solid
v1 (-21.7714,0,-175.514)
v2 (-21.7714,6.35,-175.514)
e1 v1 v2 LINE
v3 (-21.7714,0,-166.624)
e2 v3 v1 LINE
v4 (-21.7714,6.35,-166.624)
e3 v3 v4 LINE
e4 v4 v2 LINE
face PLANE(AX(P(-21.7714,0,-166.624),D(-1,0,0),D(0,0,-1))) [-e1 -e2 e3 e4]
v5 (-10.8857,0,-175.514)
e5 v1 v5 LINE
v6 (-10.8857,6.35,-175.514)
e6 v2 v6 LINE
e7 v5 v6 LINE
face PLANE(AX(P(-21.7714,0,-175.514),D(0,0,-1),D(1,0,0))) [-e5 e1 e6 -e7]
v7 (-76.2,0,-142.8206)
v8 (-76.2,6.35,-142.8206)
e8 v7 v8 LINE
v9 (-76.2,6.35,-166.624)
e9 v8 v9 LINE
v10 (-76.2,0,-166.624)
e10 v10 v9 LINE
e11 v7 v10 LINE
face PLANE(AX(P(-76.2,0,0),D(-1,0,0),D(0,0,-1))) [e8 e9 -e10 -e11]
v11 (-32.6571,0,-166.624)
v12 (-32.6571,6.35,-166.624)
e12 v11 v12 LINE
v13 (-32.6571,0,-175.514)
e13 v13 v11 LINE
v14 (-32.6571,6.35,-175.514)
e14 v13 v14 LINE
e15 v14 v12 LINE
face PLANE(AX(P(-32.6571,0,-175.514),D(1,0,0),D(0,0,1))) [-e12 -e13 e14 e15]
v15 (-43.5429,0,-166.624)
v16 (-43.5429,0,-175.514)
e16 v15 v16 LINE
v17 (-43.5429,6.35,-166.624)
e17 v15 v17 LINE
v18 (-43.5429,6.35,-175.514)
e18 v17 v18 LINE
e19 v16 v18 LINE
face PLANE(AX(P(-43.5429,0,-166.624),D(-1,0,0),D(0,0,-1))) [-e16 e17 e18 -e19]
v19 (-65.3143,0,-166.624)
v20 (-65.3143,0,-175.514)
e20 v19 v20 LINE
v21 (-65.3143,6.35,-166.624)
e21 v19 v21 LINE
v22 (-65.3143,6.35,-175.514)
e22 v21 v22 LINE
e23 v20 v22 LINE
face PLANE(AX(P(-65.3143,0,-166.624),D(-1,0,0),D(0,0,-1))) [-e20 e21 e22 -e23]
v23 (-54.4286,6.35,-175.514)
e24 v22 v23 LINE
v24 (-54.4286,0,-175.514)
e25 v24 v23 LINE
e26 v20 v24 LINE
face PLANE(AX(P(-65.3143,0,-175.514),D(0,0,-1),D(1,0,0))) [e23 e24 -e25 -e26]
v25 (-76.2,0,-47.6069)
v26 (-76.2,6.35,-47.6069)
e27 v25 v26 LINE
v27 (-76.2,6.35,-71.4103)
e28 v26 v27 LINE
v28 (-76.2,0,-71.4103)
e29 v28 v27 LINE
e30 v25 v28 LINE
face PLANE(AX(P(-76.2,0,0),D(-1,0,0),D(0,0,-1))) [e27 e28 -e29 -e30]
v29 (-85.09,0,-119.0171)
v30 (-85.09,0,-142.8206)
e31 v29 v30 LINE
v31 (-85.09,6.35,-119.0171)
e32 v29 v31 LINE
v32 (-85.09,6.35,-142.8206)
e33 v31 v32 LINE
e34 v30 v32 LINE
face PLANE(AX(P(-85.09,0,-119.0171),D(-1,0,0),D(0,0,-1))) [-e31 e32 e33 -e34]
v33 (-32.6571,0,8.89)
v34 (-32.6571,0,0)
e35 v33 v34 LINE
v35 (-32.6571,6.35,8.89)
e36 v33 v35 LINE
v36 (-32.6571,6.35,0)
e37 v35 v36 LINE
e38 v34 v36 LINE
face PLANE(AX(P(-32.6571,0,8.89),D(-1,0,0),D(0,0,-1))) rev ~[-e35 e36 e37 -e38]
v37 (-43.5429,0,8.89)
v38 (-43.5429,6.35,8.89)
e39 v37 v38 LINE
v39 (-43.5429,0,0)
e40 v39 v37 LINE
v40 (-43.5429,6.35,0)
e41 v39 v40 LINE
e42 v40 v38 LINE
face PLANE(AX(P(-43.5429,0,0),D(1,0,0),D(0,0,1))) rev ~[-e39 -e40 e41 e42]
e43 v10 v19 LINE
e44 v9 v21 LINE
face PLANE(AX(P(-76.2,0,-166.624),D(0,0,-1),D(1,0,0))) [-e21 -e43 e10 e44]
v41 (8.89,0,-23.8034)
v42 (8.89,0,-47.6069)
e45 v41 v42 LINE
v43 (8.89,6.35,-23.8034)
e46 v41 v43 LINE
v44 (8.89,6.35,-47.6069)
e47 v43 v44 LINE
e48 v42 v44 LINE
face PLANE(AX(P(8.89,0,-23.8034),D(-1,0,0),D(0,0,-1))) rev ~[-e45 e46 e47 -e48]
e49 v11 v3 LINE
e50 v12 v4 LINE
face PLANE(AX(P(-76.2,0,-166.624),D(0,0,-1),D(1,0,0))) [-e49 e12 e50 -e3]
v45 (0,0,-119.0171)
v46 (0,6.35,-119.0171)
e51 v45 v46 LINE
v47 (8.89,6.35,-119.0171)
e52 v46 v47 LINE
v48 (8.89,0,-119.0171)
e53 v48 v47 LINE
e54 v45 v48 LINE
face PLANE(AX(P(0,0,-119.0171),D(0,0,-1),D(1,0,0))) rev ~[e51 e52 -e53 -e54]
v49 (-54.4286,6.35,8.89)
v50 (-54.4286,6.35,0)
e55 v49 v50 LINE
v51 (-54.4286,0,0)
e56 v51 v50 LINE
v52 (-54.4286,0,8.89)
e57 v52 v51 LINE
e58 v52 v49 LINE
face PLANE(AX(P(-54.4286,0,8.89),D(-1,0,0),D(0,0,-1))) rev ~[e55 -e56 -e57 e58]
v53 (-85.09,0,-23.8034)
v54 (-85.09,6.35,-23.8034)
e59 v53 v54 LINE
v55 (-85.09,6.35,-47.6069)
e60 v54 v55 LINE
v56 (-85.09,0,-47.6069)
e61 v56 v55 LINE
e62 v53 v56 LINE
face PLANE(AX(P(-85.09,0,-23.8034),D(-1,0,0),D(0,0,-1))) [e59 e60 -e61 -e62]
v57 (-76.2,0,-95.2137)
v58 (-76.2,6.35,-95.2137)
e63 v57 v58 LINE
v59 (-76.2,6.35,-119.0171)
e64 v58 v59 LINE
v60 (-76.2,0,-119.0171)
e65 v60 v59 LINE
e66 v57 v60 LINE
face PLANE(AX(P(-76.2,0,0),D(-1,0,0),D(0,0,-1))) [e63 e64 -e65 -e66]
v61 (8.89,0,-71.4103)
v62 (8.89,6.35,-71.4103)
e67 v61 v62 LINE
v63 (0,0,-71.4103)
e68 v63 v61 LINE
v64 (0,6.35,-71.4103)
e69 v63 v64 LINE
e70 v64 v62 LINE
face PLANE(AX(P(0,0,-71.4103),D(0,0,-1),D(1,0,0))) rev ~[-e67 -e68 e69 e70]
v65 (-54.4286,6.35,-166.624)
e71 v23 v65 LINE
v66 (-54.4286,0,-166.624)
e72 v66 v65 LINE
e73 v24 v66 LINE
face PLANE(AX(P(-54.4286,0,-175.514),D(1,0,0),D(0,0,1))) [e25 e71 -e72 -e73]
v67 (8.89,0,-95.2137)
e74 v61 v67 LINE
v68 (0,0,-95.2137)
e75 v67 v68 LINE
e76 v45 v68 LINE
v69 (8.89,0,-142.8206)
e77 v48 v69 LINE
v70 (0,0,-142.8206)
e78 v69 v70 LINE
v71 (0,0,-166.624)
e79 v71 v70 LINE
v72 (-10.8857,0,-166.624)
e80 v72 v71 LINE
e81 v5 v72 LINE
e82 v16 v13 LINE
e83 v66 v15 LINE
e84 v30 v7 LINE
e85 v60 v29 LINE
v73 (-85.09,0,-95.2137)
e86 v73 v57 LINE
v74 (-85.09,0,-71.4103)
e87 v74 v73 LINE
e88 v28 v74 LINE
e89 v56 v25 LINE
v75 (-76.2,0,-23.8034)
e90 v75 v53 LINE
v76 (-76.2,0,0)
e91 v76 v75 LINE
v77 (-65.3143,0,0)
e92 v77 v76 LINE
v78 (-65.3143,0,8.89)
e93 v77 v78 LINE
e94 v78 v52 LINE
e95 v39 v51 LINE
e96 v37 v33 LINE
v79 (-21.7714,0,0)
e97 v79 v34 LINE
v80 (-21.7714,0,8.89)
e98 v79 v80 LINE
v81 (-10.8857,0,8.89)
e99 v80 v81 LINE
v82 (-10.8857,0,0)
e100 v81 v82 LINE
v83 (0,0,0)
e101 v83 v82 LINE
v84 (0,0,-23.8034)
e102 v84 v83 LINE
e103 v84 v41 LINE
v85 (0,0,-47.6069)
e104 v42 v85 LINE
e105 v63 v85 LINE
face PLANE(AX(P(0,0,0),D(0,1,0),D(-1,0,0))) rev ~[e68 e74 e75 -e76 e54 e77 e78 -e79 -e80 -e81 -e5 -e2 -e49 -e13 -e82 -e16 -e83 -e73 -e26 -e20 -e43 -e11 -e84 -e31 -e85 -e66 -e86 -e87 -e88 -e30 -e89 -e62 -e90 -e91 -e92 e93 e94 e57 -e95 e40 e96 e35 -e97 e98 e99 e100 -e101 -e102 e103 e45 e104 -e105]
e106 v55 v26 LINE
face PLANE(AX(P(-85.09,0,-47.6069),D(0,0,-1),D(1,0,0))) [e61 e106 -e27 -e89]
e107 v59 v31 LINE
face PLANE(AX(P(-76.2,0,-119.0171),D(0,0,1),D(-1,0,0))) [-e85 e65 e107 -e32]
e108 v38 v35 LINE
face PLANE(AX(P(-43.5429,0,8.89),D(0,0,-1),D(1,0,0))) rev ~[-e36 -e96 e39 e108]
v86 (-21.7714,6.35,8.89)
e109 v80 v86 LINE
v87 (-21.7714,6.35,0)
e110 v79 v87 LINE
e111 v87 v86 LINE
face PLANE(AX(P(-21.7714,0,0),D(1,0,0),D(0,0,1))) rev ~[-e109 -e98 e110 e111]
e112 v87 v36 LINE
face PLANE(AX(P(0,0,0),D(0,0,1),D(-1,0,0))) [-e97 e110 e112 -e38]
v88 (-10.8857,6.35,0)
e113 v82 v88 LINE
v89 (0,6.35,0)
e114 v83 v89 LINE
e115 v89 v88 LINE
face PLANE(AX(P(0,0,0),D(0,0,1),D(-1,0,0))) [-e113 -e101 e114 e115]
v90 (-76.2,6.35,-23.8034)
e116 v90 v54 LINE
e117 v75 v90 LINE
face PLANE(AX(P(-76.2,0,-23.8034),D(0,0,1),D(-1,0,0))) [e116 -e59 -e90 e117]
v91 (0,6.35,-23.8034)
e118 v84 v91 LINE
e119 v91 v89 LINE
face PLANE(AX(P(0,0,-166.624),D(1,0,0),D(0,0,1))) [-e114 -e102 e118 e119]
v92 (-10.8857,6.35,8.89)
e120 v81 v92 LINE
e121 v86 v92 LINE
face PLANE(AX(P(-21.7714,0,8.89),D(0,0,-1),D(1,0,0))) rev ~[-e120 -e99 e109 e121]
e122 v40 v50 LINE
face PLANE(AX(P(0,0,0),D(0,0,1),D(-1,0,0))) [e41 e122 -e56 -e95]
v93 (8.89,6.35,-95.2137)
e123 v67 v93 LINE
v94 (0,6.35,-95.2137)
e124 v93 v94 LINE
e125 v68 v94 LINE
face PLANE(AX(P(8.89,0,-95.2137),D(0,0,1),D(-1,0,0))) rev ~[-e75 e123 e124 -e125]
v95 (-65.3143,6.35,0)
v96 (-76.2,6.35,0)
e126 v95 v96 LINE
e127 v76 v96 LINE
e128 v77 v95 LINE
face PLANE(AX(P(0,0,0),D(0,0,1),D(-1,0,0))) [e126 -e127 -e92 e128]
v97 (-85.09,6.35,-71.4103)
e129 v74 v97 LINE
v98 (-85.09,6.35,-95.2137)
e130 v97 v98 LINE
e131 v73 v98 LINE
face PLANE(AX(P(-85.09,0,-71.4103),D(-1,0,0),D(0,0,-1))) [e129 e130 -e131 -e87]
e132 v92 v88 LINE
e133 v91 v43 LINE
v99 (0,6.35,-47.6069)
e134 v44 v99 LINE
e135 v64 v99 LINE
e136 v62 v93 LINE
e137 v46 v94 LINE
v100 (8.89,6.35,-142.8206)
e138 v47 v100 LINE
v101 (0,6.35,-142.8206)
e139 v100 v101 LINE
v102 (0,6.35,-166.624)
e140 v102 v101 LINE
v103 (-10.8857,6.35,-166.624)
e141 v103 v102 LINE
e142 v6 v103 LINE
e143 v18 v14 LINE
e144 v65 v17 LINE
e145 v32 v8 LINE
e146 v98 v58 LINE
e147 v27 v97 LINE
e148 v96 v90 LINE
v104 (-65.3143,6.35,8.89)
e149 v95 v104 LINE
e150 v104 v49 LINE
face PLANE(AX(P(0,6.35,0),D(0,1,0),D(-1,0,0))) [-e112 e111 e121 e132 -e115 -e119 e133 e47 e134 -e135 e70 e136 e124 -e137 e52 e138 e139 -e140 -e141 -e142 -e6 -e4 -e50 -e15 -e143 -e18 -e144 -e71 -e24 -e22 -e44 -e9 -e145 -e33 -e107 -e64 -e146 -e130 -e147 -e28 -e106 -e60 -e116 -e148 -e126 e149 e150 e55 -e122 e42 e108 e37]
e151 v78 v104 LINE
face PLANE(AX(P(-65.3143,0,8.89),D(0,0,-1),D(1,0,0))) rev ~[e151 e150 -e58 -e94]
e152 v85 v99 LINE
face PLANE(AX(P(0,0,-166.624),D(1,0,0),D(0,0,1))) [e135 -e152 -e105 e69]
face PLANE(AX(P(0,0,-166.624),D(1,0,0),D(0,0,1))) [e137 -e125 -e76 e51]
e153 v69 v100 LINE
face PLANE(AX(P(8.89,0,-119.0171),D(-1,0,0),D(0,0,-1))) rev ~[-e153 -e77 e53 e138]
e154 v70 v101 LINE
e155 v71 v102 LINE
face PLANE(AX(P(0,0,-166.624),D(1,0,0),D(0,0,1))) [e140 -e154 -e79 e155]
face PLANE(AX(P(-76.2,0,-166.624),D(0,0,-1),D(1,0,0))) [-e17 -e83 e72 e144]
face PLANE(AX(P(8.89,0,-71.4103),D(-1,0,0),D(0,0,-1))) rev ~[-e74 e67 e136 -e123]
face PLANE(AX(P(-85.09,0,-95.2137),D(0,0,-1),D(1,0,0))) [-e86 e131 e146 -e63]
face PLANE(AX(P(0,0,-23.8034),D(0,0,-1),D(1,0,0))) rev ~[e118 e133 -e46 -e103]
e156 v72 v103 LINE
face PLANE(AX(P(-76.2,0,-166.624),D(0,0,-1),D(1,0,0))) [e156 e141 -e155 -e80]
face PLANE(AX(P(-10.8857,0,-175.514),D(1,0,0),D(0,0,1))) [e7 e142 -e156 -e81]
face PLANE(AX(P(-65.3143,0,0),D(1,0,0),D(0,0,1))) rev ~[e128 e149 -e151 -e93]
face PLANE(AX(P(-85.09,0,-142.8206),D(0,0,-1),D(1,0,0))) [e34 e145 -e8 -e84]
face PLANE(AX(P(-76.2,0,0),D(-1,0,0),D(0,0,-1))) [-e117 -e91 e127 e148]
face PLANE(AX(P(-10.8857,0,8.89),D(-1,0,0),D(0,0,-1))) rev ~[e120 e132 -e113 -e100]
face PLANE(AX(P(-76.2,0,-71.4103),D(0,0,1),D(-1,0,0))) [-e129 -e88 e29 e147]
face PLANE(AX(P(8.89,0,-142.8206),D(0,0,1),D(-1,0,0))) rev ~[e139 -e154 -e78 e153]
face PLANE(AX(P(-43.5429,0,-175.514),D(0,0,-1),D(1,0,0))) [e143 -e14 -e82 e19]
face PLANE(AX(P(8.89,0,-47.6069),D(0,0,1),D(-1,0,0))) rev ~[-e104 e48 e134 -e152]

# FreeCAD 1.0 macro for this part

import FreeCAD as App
import Part
import Sketcher

V = App.Vector
Q = App.Units.Quantity


def add_polygon(sketch, points):
    """Adds a closed chain of lines whose ends are joined by coincident constraints."""
    first, n = sketch.GeometryCount, len(points)
    for a, b in zip(points, points[1:] + points[:1]):
        sketch.addGeometry(Part.LineSegment(App.Vector(*a, 0), App.Vector(*b, 0)), False)
    for i in range(n):
        sketch.addConstraint(Sketcher.Constraint("Coincident", first + i, 2, first + (i + 1) % n, 1))

doc = App.newDocument("Part")
body = doc.addObject("PartDesign::Body", "Body")

sketch1 = doc.addObject("Sketcher::SketchObject", "Sketch")
body.addObject(sketch1)
sketch1.AttachmentSupport = (doc.XZ_Plane, [""])
sketch1.MapMode = "FlatFace"
add_polygon(sketch1, [(-76, 0), (0, 0), (0, -167), (-76, -167)])
sketch1.addConstraint([
    Sketcher.Constraint("Horizontal", 0),
    Sketcher.Constraint("Vertical", 1),
    Sketcher.Constraint("Horizontal", 2),
    Sketcher.Constraint("Vertical", 3),
    Sketcher.Constraint("Coincident", 0, 2, -1, 1),
    Sketcher.Constraint("DistanceX", 0, 1, 0, 2, Q("3 in")),
    Sketcher.Constraint("DistanceY", 1, 2, 1, 1, Q("6.56 in")),
])
pad1 = doc.addObject("PartDesign::Pad", "Pad")
body.addObject(pad1)
pad1.Profile = sketch1
pad1.Length = Q("0.25 in")
pad1.Reversed = True

sketch2 = doc.addObject("Sketcher::SketchObject", "Sketch001")
body.addObject(sketch2)
sketch2.AttachmentSupport = (doc.XZ_Plane, [""])
sketch2.MapMode = "FlatFace"
add_polygon(sketch2, [(-54, 0), (-65, 0), (-65, 9), (-54, 9)])
add_polygon(sketch2, [(-85, -24), (-76, -24), (-76, -48), (-85, -48)])
add_polygon(sketch2, [(-33, 0), (-44, 0), (-44, 9), (-33, 9)])
add_polygon(sketch2, [(-85, -71), (-76, -71), (-76, -95), (-85, -95)])
add_polygon(sketch2, [(-11, 0), (-22, 0), (-22, 9), (-11, 9)])
add_polygon(sketch2, [(-85, -119), (-76, -119), (-76, -143), (-85, -143)])
add_polygon(sketch2, [(0, -48), (0, -24), (9, -24), (9, -48)])
add_polygon(sketch2, [(-65, -176), (-65, -167), (-54, -167), (-54, -176)])
add_polygon(sketch2, [(0, -95), (0, -71), (9, -71), (9, -95)])
add_polygon(sketch2, [(-44, -176), (-44, -167), (-33, -167), (-33, -176)])
add_polygon(sketch2, [(0, -143), (0, -119), (9, -119), (9, -143)])
add_polygon(sketch2, [(-22, -176), (-22, -167), (-11, -167), (-11, -176)])
sketch2.addConstraint([
    Sketcher.Constraint("Horizontal", 0),
    Sketcher.Constraint("Vertical", 1),
    Sketcher.Constraint("Horizontal", 2),
    Sketcher.Constraint("Vertical", 3),
    Sketcher.Constraint("Horizontal", 4),
    Sketcher.Constraint("Vertical", 5),
    Sketcher.Constraint("Horizontal", 6),
    Sketcher.Constraint("Vertical", 7),
    Sketcher.Constraint("Horizontal", 8),
    Sketcher.Constraint("Vertical", 9),
    Sketcher.Constraint("Horizontal", 10),
    Sketcher.Constraint("Vertical", 11),
    Sketcher.Constraint("Horizontal", 12),
    Sketcher.Constraint("Vertical", 13),
    Sketcher.Constraint("Horizontal", 14),
    Sketcher.Constraint("Vertical", 15),
    Sketcher.Constraint("Horizontal", 16),
    Sketcher.Constraint("Vertical", 17),
    Sketcher.Constraint("Horizontal", 18),
    Sketcher.Constraint("Vertical", 19),
    Sketcher.Constraint("Horizontal", 20),
    Sketcher.Constraint("Vertical", 21),
    Sketcher.Constraint("Horizontal", 22),
    Sketcher.Constraint("Vertical", 23),
    Sketcher.Constraint("Vertical", 24),
    Sketcher.Constraint("Horizontal", 25),
    Sketcher.Constraint("Vertical", 26),
    Sketcher.Constraint("Horizontal", 27),
    Sketcher.Constraint("Vertical", 28),
    Sketcher.Constraint("Horizontal", 29),
    Sketcher.Constraint("Vertical", 30),
    Sketcher.Constraint("Horizontal", 31),
    Sketcher.Constraint("Vertical", 32),
    Sketcher.Constraint("Horizontal", 33),
    Sketcher.Constraint("Vertical", 34),
    Sketcher.Constraint("Horizontal", 35),
    Sketcher.Constraint("Vertical", 36),
    Sketcher.Constraint("Horizontal", 37),
    Sketcher.Constraint("Vertical", 38),
    Sketcher.Constraint("Horizontal", 39),
    Sketcher.Constraint("Vertical", 40),
    Sketcher.Constraint("Horizontal", 41),
    Sketcher.Constraint("Vertical", 42),
    Sketcher.Constraint("Horizontal", 43),
    Sketcher.Constraint("Vertical", 44),
    Sketcher.Constraint("Horizontal", 45),
    Sketcher.Constraint("Vertical", 46),
    Sketcher.Constraint("Horizontal", 47),
    Sketcher.Constraint("PointOnObject", 0, 2, -1),
    Sketcher.Constraint("PointOnObject", 8, 2, -1),
    Sketcher.Constraint("PointOnObject", 16, 2, -1),
    Sketcher.Constraint("PointOnObject", 24, 2, -2),
    Sketcher.Constraint("PointOnObject", 32, 2, -2),
    Sketcher.Constraint("PointOnObject", 40, 2, -2),
    Sketcher.Constraint("Horizontal", 2, 2, 9, 2),
    Sketcher.Constraint("Horizontal", 10, 2, 17, 2),
    Sketcher.Constraint("Horizontal", 7, 2, 24, 2),
    Sketcher.Constraint("Horizontal", 6, 2, 26, 2),
    Sketcher.Constraint("Horizontal", 15, 2, 32, 2),
    Sketcher.Constraint("Horizontal", 14, 2, 34, 2),
    Sketcher.Constraint("Horizontal", 29, 2, 36, 2),
    Sketcher.Constraint("Horizontal", 31, 2, 38, 2),
    Sketcher.Constraint("Horizontal", 23, 2, 40, 2),
    Sketcher.Constraint("Horizontal", 22, 2, 42, 2),
    Sketcher.Constraint("Horizontal", 37, 2, 44, 2),
    Sketcher.Constraint("Horizontal", 39, 2, 46, 2),
    Sketcher.Constraint("Vertical", 5, 2, 12, 2),
    Sketcher.Constraint("Vertical", 7, 2, 14, 2),
    Sketcher.Constraint("Vertical", 13, 2, 20, 2),
    Sketcher.Constraint("Vertical", 15, 2, 22, 2),
    Sketcher.Constraint("Vertical", 1, 2, 28, 2),
    Sketcher.Constraint("Vertical", 3, 2, 29, 2),
    Sketcher.Constraint("Vertical", 26, 2, 33, 2),
    Sketcher.Constraint("Vertical", 9, 2, 36, 2),
    Sketcher.Constraint("Vertical", 11, 2, 37, 2),
    Sketcher.Constraint("Vertical", 34, 2, 41, 2),
    Sketcher.Constraint("Vertical", 17, 2, 44, 2),
    Sketcher.Constraint("Vertical", 19, 2, 45, 2),
    Sketcher.Constraint("Equal", 2, 8),
    Sketcher.Constraint("Equal", 10, 16),
    Sketcher.Constraint("Equal", 22, 25),
    Sketcher.Constraint("Equal", 43, 1),
    Sketcher.Constraint("Equal", 7, 13),
    Sketcher.Constraint("Equal", 15, 21),
    Sketcher.Constraint("Equal", 19, 28),
    Sketcher.Constraint("DistanceX", 4, 2, -1, 1, Q("3 in")),
    Sketcher.Constraint("DistanceX", 4, 1, 4, 2, Q("0.35 in")),
    Sketcher.Constraint("DistanceY", 28, 2, -1, 1, Q("6.56 in")),
    Sketcher.Constraint("DistanceX", 0, 2, 0, 1, Q("10.8857 mm")),
    Sketcher.Constraint("DistanceY", 5, 2, 5, 1, Q("23.8035 mm")),
    Sketcher.Constraint("DistanceY", 4, 2, -1, 1, Q("23.8034 mm")),
    Sketcher.Constraint("DistanceX", 18, 2, -1, 1, Q("10.8857 mm")),
    Sketcher.Constraint("DistanceX", 4, 2, 0, 2, Q("10.8857 mm")),
    Sketcher.Constraint("DistanceX", 3, 2, 8, 2, Q("10.8857 mm")),
    Sketcher.Constraint("DistanceY", 12, 2, 5, 2, Q("23.8034 mm")),
    Sketcher.Constraint("DistanceY", 20, 2, 13, 2, Q("23.8034 mm")),
])
pad2 = doc.addObject("PartDesign::Pad", "Pad001")
body.addObject(pad2)
pad2.Profile = sketch2
pad2.Length = Q("0.25 in")
pad2.Reversed = True

doc.recompute()
